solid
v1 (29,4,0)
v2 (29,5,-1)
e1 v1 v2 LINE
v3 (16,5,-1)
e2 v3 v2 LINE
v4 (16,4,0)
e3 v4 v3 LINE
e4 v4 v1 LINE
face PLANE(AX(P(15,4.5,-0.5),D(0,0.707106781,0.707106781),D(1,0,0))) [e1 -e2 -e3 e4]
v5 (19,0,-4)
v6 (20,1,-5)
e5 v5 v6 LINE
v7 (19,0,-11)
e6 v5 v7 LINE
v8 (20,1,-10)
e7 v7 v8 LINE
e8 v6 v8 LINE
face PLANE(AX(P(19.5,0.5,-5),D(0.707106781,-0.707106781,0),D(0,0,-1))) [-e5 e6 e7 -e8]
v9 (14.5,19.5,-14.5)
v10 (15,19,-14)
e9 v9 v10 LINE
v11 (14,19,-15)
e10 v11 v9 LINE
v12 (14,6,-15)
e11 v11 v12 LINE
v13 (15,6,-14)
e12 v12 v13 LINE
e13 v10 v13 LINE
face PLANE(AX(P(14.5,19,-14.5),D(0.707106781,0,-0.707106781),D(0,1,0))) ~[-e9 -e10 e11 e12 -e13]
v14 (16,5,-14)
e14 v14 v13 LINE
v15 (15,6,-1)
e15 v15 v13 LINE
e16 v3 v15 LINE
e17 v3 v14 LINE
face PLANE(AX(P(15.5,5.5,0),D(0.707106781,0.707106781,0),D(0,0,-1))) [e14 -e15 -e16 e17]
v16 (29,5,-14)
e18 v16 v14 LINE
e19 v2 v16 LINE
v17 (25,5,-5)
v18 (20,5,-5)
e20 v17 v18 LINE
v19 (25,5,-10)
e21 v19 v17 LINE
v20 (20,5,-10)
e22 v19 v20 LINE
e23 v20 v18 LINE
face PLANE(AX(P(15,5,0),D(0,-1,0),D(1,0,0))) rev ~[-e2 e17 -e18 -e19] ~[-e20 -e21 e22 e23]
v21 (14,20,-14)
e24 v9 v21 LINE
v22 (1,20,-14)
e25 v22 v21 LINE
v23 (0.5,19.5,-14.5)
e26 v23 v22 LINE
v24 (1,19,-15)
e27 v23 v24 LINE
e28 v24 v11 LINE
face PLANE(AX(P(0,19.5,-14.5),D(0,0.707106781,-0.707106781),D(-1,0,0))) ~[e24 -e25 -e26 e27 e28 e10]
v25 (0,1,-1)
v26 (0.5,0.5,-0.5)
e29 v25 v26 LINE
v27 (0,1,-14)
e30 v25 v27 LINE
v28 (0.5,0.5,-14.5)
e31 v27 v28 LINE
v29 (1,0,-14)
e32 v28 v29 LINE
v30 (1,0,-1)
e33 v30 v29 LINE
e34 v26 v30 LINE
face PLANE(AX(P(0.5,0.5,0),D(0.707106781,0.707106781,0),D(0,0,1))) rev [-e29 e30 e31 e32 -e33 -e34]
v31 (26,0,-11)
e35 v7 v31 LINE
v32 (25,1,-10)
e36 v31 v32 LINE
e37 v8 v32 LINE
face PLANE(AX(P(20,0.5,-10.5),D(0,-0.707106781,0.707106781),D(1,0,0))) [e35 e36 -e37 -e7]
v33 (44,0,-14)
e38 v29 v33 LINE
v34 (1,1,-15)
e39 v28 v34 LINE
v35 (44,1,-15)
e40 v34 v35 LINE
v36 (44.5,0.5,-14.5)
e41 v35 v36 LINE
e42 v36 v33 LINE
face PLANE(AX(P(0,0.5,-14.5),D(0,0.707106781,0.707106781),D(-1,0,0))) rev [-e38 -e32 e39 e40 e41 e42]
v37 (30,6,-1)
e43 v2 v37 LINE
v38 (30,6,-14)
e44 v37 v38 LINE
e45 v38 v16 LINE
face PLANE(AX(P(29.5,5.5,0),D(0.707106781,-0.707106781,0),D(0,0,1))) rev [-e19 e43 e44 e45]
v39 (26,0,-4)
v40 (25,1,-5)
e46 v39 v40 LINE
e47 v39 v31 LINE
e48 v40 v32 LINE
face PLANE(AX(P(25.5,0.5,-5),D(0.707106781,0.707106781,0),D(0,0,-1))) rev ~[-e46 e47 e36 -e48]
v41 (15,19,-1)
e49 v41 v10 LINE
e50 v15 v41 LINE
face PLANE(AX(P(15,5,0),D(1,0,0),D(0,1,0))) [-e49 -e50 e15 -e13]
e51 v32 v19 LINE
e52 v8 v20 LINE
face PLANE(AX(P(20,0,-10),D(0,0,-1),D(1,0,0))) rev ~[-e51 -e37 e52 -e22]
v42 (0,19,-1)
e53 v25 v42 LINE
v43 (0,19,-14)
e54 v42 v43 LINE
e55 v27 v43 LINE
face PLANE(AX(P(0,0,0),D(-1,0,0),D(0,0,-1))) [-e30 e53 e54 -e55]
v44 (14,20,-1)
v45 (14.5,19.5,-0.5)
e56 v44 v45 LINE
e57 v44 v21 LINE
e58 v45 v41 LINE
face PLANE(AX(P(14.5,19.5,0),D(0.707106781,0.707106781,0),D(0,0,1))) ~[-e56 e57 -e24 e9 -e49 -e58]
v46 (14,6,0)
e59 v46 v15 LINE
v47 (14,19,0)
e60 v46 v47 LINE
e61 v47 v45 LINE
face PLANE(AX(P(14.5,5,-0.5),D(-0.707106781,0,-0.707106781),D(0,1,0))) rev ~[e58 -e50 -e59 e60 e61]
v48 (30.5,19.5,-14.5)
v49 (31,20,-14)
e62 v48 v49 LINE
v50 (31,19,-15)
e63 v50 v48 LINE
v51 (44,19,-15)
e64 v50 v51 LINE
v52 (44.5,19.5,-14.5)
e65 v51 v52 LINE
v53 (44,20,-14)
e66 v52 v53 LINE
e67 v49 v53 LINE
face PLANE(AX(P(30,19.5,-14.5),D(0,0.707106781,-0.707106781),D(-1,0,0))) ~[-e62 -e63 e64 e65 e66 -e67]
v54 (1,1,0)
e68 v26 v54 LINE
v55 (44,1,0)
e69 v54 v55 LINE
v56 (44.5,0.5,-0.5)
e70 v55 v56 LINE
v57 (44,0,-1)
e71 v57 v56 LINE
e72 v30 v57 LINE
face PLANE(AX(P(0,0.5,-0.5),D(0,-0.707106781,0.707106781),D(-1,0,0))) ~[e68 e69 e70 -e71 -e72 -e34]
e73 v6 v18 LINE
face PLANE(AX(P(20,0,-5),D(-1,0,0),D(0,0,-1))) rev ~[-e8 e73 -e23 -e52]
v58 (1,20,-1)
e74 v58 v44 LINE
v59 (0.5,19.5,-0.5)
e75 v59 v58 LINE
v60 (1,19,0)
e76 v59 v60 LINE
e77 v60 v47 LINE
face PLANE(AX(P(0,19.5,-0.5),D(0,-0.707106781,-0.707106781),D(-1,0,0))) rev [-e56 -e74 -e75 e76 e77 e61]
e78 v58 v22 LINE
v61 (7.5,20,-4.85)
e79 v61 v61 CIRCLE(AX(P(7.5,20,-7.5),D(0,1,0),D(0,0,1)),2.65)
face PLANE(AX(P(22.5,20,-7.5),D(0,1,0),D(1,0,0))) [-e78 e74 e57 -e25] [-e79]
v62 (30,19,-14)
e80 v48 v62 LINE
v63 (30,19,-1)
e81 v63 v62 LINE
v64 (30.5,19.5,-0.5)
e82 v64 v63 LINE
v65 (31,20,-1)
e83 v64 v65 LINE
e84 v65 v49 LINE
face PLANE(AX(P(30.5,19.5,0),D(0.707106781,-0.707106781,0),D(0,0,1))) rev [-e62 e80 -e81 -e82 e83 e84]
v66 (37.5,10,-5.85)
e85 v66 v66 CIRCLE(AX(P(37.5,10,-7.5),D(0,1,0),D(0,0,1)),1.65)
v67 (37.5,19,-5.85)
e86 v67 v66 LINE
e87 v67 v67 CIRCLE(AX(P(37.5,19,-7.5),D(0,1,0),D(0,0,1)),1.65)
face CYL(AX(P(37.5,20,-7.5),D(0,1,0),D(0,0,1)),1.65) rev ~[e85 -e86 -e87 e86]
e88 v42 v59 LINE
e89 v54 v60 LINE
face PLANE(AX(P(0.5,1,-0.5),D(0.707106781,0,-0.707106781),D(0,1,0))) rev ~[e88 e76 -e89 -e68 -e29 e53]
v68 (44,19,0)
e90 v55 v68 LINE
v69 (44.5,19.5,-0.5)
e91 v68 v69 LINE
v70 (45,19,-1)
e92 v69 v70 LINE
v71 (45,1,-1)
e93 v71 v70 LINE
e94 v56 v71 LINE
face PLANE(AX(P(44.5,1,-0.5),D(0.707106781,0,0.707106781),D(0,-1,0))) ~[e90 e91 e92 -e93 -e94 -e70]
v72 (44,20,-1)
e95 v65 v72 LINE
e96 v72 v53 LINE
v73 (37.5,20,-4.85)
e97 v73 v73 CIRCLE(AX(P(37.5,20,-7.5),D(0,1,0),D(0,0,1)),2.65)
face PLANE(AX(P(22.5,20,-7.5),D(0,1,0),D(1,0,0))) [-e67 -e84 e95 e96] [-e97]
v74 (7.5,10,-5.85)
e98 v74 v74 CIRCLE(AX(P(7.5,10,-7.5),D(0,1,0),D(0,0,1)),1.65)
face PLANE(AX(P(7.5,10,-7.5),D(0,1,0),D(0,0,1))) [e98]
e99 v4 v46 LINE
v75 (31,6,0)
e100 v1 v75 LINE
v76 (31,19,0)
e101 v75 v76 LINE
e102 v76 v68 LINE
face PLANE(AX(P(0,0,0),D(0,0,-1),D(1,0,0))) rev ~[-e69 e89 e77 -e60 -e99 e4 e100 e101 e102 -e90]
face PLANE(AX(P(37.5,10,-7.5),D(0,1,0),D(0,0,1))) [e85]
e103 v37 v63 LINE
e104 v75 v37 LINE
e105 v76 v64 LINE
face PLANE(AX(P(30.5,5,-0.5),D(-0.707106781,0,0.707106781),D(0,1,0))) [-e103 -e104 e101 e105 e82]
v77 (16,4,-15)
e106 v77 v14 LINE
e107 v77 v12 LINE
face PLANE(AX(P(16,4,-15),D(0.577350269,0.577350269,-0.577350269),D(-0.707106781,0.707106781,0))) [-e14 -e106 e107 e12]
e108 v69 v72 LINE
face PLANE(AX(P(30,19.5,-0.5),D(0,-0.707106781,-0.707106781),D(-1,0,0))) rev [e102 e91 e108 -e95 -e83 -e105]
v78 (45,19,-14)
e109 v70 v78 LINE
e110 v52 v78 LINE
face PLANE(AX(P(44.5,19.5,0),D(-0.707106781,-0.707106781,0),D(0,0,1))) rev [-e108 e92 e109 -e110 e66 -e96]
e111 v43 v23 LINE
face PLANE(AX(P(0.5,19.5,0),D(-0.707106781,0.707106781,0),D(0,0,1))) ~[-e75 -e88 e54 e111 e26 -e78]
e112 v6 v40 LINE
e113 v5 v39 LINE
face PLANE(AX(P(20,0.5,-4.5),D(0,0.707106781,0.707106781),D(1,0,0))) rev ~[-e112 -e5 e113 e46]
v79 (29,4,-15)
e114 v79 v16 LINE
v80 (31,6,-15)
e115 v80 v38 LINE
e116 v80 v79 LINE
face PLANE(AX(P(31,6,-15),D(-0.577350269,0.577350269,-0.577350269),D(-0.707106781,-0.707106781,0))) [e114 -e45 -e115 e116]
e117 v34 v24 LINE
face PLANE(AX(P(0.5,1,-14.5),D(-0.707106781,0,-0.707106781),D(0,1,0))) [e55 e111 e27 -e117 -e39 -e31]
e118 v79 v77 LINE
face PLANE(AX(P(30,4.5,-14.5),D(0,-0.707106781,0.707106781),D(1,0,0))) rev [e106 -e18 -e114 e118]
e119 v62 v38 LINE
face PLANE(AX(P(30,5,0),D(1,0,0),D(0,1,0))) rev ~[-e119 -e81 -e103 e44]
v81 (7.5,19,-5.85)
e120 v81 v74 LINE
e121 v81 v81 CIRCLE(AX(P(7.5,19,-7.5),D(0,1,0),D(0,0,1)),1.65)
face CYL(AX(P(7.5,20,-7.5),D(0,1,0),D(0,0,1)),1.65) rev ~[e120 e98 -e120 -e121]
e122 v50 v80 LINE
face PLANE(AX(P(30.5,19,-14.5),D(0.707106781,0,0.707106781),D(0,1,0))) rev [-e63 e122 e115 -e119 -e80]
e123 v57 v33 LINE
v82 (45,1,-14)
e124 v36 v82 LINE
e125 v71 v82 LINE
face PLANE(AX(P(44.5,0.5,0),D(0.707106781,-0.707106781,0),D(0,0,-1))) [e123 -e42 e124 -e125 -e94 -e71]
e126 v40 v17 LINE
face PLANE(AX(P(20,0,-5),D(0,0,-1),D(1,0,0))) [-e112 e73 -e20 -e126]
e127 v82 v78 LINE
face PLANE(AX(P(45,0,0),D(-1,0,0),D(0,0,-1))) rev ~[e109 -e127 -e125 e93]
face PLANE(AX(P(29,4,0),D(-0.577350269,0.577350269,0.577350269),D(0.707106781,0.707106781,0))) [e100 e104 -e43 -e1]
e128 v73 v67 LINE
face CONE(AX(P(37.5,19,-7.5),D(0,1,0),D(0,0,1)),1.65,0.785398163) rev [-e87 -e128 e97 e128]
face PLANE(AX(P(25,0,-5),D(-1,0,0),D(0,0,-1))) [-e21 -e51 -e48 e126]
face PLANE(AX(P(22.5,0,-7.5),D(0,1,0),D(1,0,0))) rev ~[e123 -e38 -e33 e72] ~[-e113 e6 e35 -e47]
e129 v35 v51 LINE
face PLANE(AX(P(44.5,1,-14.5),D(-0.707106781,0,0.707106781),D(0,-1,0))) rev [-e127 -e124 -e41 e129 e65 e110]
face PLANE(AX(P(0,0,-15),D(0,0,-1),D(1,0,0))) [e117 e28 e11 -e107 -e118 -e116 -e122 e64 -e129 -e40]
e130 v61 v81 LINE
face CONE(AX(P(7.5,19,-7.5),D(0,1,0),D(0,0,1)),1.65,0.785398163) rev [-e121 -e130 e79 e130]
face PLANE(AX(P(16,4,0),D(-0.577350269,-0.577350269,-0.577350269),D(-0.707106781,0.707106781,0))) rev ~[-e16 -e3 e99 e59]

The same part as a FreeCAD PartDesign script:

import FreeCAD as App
import Part
import Sketcher
from FreeCAD import Vector


def edges_at(feature, points):
    """Names of the edges that pass closest to the given points."""
    edges = feature.Shape.Edges
    near = lambda p: min(range(len(edges)), key=lambda i: edges[i].distToShape(Part.Vertex(*p))[0])
    return sorted({f"Edge{near(p) + 1}" for p in points})

doc = App.newDocument("Part")
body = doc.addObject("PartDesign::Body", "Body")

# Sketch on XZ plane
sketch1 = body.newObject("Sketcher::SketchObject", "Sketch")
sketch1.AttachmentSupport = (doc.getObject("XZ_Plane"), [""])
sketch1.MapMode = "FlatFace"
sketch1.addGeometry([
    Part.LineSegment(Vector(0, -15, 0), Vector(0, 0, 0)),  # 0
    Part.LineSegment(Vector(0, 0, 0), Vector(45, 0, 0)),  # 1
    Part.LineSegment(Vector(45, 0, 0), Vector(45, -15, 0)),  # 2
    Part.LineSegment(Vector(45, -15, 0), Vector(0, -15, 0)),  # 3
    Part.LineSegment(Vector(25, -5, 0), Vector(20, -5, 0)),  # 4
    Part.LineSegment(Vector(20, -5, 0), Vector(20, -10, 0)),  # 5
    Part.LineSegment(Vector(20, -10, 0), Vector(25, -10, 0)),  # 6
    Part.LineSegment(Vector(25, -10, 0), Vector(25, -5, 0)),  # 7
], False)
sketch1.addConstraint([
    Sketcher.Constraint("Coincident", 0, 2, 1, 1),
    Sketcher.Constraint("Coincident", 1, 2, 2, 1),
    Sketcher.Constraint("Coincident", 2, 2, 3, 1),
    Sketcher.Constraint("Coincident", 3, 2, 0, 1),
    Sketcher.Constraint("Coincident", 4, 2, 5, 1),
    Sketcher.Constraint("Coincident", 5, 2, 6, 1),
    Sketcher.Constraint("Coincident", 6, 2, 7, 1),
    Sketcher.Constraint("Coincident", 7, 2, 4, 1),
    Sketcher.Constraint("Vertical", 0),
    Sketcher.Constraint("Horizontal", 1),
    Sketcher.Constraint("Vertical", 2),
    Sketcher.Constraint("Horizontal", 3),
    Sketcher.Constraint("Horizontal", 4),
    Sketcher.Constraint("Vertical", 5),
    Sketcher.Constraint("Horizontal", 6),
    Sketcher.Constraint("Vertical", 7),
    Sketcher.Constraint("Coincident", 0, 2, -1, 1),
    Sketcher.Constraint("Equal", 6, 5),
    Sketcher.Constraint("DistanceX", 1, 1, 1, 2, 45.0),
    Sketcher.Constraint("DistanceX", 4, 2, 4, 1, 5.0),
    Sketcher.Constraint("DistanceY", 0, 1, 0, 2, 15.0),
    Sketcher.Constraint("DistanceX", -1, 1, 4, 2, 20.0),
    Sketcher.Constraint("DistanceY", 4, 2, -1, 1, 5.0),
])
pad1 = body.newObject("PartDesign::Pad", "Pad")
pad1.Profile = sketch1
pad1.Length = 20
pad1.Reversed = True

# Sketch on XY plane
sketch2 = body.newObject("Sketcher::SketchObject", "Sketch001")
sketch2.AttachmentSupport = (doc.getObject("XY_Plane"), [""])
sketch2.MapMode = "FlatFace"
sketch2.addGeometry([
    Part.LineSegment(Vector(15, 20, 0), Vector(15, 5, 0)),
    Part.LineSegment(Vector(15, 5, 0), Vector(30, 5, 0)),
    Part.LineSegment(Vector(30, 5, 0), Vector(30, 20, 0)),
    Part.LineSegment(Vector(30, 20, 0), Vector(15, 20, 0)),
], False)
sketch2.addConstraint([
    Sketcher.Constraint("Coincident", 0, 2, 1, 1),
    Sketcher.Constraint("Coincident", 1, 2, 2, 1),
    Sketcher.Constraint("Coincident", 2, 2, 3, 1),
    Sketcher.Constraint("Coincident", 3, 2, 0, 1),
    Sketcher.Constraint("Vertical", 0),
    Sketcher.Constraint("Horizontal", 1),
    Sketcher.Constraint("Vertical", 2),
    Sketcher.Constraint("Horizontal", 3),
    Sketcher.Constraint("Equal", 3, 0),
    Sketcher.Constraint("DistanceX", 1, 1, 1, 2, 15.0),
    Sketcher.Constraint("DistanceX", -1, 1, 0, 2, 15.0),
    Sketcher.Constraint("DistanceY", -1, 1, 0, 2, 5.0),
])
pocket1 = body.newObject("PartDesign::Pocket", "Pocket")
pocket1.Profile = sketch2
pocket1.Length = 20

# Sketch on XZ plane
sketch3 = body.newObject("Sketcher::SketchObject", "Sketch002")
sketch3.AttachmentSupport = (doc.getObject("XZ_Plane"), [""])
sketch3.MapMode = "FlatFace"
sketch3.AttachmentOffset = App.Placement(Vector(0, 0, -20), App.Rotation())
sketch3.addGeometry([
    Part.Circle(Vector(37.5, -7.5, 0), Vector(0, 0, 1), 1.65),
    Part.Circle(Vector(7.5, -7.5, 0), Vector(0, 0, 1), 1.65),
], False)
sketch3.addConstraint([
    Sketcher.Constraint("Equal", 0, 1),
    Sketcher.Constraint("Horizontal", 0, 3, 1, 3),
    Sketcher.Constraint("Diameter", 0, 3.3),
    Sketcher.Constraint("DistanceX", 1, 3, 0, 3, 30.0),
    Sketcher.Constraint("DistanceX", -1, 1, 0, 3, 37.5),
    Sketcher.Constraint("DistanceY", 0, 3, -1, 1, 7.5),
])
pocket2 = body.newObject("PartDesign::Pocket", "Pocket001")
pocket2.Profile = sketch3
pocket2.Length = 10
pocket2.Reversed = True
doc.recompute()

chamfer = body.newObject("PartDesign::Chamfer", "Chamfer")
chamfer.Base = (pocket2, edges_at(pocket2, [
    (45, 20, -7.5),
    (20, 0, -7.5),
    (22.5, 0, -5),
    (25, 0, -7.5),
    (22.5, 0, -10),
    (37.5, 20, -15),
    (7.5, 20, -15),
    (37.5, 20, 0),
    (30, 20, -7.5),
    (15, 20, -7.5),
    (0, 20, -7.5),
    (22.5, 0, -15),
    (45, 0, -7.5),
    (37.5, 20, -9.15),
    (22.5, 0, 0),
    (7.5, 20, -9.15),
    (0, 0, -7.5),
    (7.5, 20, 0),
]))
chamfer.Size = 1
doc.recompute()

chamfer2 = body.newObject("PartDesign::Chamfer", "Chamfer001")
chamfer2.Base = (chamfer, edges_at(chamfer, [
    (30, 12, -15),
    (15, 5, -7.5),
    (22.5, 5, -15),
    (30, 5, -7.5),
    (22.5, 5, 0),
    (30, 12, 0),
    (45, 10, -15),
    (45, 10, 0),
    (15, 12, 0),
    (0, 10, 0),
    (15, 12, -15),
    (0, 10, -15),
]))
chamfer2.Size = 1

doc.recompute()
